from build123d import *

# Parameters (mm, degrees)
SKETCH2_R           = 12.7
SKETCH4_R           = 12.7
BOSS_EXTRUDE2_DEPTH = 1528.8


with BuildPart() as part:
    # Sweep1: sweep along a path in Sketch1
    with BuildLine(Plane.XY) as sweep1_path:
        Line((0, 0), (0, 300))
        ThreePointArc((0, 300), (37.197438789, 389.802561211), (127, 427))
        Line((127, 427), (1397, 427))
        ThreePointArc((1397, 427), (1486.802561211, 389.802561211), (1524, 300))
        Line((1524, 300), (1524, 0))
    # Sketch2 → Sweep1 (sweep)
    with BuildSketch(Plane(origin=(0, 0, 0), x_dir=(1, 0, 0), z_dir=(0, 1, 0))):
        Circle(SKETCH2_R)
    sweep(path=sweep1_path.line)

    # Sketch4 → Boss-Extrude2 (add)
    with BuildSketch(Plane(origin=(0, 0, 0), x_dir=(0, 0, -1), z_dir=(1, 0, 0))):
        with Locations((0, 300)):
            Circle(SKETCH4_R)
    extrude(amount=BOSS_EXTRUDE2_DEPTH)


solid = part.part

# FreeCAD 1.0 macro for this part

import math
import FreeCAD as App
import Part
import Sketcher
Q = App.Units.Quantity

doc = App.newDocument("Part")
params = doc.addObject("Spreadsheet::Sheet", "Params")
for row, (alias, value) in enumerate([
    ("sketch1_diameter", "1 in"),
    ("sketch2_radius", "5 in"),
    ("sketch2_width", "50 in"),
    ("sketch3_diameter", "1 in"),
    ("pad1_length", "1528.8 mm"),
], start=1):
    params.set(f"A{row}", alias)
    params.set(f"B{row}", "=" + value)
    params.setAlias(f"B{row}", alias)

body = doc.addObject("PartDesign::Body", "Body")

# Sketch on XZ plane
sketch1 = body.newObject("Sketcher::SketchObject", "Sketch")
sketch1.AttachmentSupport = (doc.getObject("XZ_Plane"), [""])
sketch1.MapMode = "FlatFace"
sketch1.addGeometry(Part.Circle(App.Vector(0, 0, 0), App.Vector(0, 0, 1), 12.7), False)
sketch1.addConstraint([
    Sketcher.Constraint("Coincident", 0, 3, -1, 1),
    Sketcher.Constraint("Diameter", 0, Q("1 in")),
])
sketch1.setExpression("Constraints[1]", "Params.sketch1_diameter")

# Sketch on XY plane
sketch2 = body.newObject("Sketcher::SketchObject", "Sketch001")
sketch2.AttachmentSupport = (doc.getObject("XY_Plane"), [""])
sketch2.MapMode = "FlatFace"
sketch2.addGeometry([
    Part.LineSegment(App.Vector(0, 0, 0), App.Vector(0, 300, 0)),  # 0
    Part.ArcOfCircle(Part.Circle(App.Vector(127, 300, 0), App.Vector(0, 0, 1), 127), math.radians(90), math.radians(180)),  # 1
    Part.LineSegment(App.Vector(127, 427, 0), App.Vector(1397, 427, 0)),  # 2
    Part.ArcOfCircle(Part.Circle(App.Vector(1397, 300, 0), App.Vector(0, 0, 1), 127), math.radians(0), math.radians(90)),  # 3
    Part.LineSegment(App.Vector(1524, 300, 0), App.Vector(1524, 0, 0)),  # 4
], False)
sketch2.addConstraint([
    Sketcher.Constraint("Tangent", 0, 2, 1, 2),
    Sketcher.Constraint("Tangent", 1, 1, 2, 1),
    Sketcher.Constraint("Tangent", 2, 2, 3, 2),
    Sketcher.Constraint("Tangent", 3, 1, 4, 1),
    Sketcher.Constraint("Vertical", 0),
    Sketcher.Constraint("Horizontal", 2),
    Sketcher.Constraint("Vertical", 4),
    Sketcher.Constraint("Coincident", 0, 1, -1, 1),
    Sketcher.Constraint("Equal", 1, 3),
    Sketcher.Constraint("PointOnObject", 4, 2, -1),
    Sketcher.Constraint("Radius", 1, Q("5 in")),
    Sketcher.Constraint("DistanceX", 2, 1, 2, 2, Q("50 in")),
    Sketcher.Constraint("DistanceY", 0, 1, 0, 2, 300.0),
])
sketch2.setExpression("Constraints[10]", "Params.sketch2_radius")
sketch2.setExpression("Constraints[11]", "Params.sketch2_width")
doc.recompute()

additivepipe = body.newObject("PartDesign::AdditivePipe", "AdditivePipe")
additivepipe.Profile = sketch1
additivepipe.Spine = (sketch2, ["Edge1", "Edge2", "Edge3", "Edge4", "Edge5"])

# Sketch on YZ plane
sketch3 = body.newObject("Sketcher::SketchObject", "Sketch002")
sketch3.AttachmentSupport = (doc.getObject("YZ_Plane"), [""])
sketch3.MapMode = "FlatFace"
sketch3.addGeometry(Part.Circle(App.Vector(300, 0, 0), App.Vector(0, 0, 1), 12.7), False)
sketch3.addConstraint([
    Sketcher.Constraint("PointOnObject", 0, 3, -1),
    Sketcher.Constraint("Diameter", 0, Q("1 in")),
    Sketcher.Constraint("DistanceX", -1, 1, 0, 3, 300.0),
])
sketch3.setExpression("Constraints[1]", "Params.sketch3_diameter")
pad1 = body.newObject("PartDesign::Pad", "Pad")
pad1.Profile = sketch3
pad1.setExpression("Length", "Params.pad1_length")

doc.recompute()
